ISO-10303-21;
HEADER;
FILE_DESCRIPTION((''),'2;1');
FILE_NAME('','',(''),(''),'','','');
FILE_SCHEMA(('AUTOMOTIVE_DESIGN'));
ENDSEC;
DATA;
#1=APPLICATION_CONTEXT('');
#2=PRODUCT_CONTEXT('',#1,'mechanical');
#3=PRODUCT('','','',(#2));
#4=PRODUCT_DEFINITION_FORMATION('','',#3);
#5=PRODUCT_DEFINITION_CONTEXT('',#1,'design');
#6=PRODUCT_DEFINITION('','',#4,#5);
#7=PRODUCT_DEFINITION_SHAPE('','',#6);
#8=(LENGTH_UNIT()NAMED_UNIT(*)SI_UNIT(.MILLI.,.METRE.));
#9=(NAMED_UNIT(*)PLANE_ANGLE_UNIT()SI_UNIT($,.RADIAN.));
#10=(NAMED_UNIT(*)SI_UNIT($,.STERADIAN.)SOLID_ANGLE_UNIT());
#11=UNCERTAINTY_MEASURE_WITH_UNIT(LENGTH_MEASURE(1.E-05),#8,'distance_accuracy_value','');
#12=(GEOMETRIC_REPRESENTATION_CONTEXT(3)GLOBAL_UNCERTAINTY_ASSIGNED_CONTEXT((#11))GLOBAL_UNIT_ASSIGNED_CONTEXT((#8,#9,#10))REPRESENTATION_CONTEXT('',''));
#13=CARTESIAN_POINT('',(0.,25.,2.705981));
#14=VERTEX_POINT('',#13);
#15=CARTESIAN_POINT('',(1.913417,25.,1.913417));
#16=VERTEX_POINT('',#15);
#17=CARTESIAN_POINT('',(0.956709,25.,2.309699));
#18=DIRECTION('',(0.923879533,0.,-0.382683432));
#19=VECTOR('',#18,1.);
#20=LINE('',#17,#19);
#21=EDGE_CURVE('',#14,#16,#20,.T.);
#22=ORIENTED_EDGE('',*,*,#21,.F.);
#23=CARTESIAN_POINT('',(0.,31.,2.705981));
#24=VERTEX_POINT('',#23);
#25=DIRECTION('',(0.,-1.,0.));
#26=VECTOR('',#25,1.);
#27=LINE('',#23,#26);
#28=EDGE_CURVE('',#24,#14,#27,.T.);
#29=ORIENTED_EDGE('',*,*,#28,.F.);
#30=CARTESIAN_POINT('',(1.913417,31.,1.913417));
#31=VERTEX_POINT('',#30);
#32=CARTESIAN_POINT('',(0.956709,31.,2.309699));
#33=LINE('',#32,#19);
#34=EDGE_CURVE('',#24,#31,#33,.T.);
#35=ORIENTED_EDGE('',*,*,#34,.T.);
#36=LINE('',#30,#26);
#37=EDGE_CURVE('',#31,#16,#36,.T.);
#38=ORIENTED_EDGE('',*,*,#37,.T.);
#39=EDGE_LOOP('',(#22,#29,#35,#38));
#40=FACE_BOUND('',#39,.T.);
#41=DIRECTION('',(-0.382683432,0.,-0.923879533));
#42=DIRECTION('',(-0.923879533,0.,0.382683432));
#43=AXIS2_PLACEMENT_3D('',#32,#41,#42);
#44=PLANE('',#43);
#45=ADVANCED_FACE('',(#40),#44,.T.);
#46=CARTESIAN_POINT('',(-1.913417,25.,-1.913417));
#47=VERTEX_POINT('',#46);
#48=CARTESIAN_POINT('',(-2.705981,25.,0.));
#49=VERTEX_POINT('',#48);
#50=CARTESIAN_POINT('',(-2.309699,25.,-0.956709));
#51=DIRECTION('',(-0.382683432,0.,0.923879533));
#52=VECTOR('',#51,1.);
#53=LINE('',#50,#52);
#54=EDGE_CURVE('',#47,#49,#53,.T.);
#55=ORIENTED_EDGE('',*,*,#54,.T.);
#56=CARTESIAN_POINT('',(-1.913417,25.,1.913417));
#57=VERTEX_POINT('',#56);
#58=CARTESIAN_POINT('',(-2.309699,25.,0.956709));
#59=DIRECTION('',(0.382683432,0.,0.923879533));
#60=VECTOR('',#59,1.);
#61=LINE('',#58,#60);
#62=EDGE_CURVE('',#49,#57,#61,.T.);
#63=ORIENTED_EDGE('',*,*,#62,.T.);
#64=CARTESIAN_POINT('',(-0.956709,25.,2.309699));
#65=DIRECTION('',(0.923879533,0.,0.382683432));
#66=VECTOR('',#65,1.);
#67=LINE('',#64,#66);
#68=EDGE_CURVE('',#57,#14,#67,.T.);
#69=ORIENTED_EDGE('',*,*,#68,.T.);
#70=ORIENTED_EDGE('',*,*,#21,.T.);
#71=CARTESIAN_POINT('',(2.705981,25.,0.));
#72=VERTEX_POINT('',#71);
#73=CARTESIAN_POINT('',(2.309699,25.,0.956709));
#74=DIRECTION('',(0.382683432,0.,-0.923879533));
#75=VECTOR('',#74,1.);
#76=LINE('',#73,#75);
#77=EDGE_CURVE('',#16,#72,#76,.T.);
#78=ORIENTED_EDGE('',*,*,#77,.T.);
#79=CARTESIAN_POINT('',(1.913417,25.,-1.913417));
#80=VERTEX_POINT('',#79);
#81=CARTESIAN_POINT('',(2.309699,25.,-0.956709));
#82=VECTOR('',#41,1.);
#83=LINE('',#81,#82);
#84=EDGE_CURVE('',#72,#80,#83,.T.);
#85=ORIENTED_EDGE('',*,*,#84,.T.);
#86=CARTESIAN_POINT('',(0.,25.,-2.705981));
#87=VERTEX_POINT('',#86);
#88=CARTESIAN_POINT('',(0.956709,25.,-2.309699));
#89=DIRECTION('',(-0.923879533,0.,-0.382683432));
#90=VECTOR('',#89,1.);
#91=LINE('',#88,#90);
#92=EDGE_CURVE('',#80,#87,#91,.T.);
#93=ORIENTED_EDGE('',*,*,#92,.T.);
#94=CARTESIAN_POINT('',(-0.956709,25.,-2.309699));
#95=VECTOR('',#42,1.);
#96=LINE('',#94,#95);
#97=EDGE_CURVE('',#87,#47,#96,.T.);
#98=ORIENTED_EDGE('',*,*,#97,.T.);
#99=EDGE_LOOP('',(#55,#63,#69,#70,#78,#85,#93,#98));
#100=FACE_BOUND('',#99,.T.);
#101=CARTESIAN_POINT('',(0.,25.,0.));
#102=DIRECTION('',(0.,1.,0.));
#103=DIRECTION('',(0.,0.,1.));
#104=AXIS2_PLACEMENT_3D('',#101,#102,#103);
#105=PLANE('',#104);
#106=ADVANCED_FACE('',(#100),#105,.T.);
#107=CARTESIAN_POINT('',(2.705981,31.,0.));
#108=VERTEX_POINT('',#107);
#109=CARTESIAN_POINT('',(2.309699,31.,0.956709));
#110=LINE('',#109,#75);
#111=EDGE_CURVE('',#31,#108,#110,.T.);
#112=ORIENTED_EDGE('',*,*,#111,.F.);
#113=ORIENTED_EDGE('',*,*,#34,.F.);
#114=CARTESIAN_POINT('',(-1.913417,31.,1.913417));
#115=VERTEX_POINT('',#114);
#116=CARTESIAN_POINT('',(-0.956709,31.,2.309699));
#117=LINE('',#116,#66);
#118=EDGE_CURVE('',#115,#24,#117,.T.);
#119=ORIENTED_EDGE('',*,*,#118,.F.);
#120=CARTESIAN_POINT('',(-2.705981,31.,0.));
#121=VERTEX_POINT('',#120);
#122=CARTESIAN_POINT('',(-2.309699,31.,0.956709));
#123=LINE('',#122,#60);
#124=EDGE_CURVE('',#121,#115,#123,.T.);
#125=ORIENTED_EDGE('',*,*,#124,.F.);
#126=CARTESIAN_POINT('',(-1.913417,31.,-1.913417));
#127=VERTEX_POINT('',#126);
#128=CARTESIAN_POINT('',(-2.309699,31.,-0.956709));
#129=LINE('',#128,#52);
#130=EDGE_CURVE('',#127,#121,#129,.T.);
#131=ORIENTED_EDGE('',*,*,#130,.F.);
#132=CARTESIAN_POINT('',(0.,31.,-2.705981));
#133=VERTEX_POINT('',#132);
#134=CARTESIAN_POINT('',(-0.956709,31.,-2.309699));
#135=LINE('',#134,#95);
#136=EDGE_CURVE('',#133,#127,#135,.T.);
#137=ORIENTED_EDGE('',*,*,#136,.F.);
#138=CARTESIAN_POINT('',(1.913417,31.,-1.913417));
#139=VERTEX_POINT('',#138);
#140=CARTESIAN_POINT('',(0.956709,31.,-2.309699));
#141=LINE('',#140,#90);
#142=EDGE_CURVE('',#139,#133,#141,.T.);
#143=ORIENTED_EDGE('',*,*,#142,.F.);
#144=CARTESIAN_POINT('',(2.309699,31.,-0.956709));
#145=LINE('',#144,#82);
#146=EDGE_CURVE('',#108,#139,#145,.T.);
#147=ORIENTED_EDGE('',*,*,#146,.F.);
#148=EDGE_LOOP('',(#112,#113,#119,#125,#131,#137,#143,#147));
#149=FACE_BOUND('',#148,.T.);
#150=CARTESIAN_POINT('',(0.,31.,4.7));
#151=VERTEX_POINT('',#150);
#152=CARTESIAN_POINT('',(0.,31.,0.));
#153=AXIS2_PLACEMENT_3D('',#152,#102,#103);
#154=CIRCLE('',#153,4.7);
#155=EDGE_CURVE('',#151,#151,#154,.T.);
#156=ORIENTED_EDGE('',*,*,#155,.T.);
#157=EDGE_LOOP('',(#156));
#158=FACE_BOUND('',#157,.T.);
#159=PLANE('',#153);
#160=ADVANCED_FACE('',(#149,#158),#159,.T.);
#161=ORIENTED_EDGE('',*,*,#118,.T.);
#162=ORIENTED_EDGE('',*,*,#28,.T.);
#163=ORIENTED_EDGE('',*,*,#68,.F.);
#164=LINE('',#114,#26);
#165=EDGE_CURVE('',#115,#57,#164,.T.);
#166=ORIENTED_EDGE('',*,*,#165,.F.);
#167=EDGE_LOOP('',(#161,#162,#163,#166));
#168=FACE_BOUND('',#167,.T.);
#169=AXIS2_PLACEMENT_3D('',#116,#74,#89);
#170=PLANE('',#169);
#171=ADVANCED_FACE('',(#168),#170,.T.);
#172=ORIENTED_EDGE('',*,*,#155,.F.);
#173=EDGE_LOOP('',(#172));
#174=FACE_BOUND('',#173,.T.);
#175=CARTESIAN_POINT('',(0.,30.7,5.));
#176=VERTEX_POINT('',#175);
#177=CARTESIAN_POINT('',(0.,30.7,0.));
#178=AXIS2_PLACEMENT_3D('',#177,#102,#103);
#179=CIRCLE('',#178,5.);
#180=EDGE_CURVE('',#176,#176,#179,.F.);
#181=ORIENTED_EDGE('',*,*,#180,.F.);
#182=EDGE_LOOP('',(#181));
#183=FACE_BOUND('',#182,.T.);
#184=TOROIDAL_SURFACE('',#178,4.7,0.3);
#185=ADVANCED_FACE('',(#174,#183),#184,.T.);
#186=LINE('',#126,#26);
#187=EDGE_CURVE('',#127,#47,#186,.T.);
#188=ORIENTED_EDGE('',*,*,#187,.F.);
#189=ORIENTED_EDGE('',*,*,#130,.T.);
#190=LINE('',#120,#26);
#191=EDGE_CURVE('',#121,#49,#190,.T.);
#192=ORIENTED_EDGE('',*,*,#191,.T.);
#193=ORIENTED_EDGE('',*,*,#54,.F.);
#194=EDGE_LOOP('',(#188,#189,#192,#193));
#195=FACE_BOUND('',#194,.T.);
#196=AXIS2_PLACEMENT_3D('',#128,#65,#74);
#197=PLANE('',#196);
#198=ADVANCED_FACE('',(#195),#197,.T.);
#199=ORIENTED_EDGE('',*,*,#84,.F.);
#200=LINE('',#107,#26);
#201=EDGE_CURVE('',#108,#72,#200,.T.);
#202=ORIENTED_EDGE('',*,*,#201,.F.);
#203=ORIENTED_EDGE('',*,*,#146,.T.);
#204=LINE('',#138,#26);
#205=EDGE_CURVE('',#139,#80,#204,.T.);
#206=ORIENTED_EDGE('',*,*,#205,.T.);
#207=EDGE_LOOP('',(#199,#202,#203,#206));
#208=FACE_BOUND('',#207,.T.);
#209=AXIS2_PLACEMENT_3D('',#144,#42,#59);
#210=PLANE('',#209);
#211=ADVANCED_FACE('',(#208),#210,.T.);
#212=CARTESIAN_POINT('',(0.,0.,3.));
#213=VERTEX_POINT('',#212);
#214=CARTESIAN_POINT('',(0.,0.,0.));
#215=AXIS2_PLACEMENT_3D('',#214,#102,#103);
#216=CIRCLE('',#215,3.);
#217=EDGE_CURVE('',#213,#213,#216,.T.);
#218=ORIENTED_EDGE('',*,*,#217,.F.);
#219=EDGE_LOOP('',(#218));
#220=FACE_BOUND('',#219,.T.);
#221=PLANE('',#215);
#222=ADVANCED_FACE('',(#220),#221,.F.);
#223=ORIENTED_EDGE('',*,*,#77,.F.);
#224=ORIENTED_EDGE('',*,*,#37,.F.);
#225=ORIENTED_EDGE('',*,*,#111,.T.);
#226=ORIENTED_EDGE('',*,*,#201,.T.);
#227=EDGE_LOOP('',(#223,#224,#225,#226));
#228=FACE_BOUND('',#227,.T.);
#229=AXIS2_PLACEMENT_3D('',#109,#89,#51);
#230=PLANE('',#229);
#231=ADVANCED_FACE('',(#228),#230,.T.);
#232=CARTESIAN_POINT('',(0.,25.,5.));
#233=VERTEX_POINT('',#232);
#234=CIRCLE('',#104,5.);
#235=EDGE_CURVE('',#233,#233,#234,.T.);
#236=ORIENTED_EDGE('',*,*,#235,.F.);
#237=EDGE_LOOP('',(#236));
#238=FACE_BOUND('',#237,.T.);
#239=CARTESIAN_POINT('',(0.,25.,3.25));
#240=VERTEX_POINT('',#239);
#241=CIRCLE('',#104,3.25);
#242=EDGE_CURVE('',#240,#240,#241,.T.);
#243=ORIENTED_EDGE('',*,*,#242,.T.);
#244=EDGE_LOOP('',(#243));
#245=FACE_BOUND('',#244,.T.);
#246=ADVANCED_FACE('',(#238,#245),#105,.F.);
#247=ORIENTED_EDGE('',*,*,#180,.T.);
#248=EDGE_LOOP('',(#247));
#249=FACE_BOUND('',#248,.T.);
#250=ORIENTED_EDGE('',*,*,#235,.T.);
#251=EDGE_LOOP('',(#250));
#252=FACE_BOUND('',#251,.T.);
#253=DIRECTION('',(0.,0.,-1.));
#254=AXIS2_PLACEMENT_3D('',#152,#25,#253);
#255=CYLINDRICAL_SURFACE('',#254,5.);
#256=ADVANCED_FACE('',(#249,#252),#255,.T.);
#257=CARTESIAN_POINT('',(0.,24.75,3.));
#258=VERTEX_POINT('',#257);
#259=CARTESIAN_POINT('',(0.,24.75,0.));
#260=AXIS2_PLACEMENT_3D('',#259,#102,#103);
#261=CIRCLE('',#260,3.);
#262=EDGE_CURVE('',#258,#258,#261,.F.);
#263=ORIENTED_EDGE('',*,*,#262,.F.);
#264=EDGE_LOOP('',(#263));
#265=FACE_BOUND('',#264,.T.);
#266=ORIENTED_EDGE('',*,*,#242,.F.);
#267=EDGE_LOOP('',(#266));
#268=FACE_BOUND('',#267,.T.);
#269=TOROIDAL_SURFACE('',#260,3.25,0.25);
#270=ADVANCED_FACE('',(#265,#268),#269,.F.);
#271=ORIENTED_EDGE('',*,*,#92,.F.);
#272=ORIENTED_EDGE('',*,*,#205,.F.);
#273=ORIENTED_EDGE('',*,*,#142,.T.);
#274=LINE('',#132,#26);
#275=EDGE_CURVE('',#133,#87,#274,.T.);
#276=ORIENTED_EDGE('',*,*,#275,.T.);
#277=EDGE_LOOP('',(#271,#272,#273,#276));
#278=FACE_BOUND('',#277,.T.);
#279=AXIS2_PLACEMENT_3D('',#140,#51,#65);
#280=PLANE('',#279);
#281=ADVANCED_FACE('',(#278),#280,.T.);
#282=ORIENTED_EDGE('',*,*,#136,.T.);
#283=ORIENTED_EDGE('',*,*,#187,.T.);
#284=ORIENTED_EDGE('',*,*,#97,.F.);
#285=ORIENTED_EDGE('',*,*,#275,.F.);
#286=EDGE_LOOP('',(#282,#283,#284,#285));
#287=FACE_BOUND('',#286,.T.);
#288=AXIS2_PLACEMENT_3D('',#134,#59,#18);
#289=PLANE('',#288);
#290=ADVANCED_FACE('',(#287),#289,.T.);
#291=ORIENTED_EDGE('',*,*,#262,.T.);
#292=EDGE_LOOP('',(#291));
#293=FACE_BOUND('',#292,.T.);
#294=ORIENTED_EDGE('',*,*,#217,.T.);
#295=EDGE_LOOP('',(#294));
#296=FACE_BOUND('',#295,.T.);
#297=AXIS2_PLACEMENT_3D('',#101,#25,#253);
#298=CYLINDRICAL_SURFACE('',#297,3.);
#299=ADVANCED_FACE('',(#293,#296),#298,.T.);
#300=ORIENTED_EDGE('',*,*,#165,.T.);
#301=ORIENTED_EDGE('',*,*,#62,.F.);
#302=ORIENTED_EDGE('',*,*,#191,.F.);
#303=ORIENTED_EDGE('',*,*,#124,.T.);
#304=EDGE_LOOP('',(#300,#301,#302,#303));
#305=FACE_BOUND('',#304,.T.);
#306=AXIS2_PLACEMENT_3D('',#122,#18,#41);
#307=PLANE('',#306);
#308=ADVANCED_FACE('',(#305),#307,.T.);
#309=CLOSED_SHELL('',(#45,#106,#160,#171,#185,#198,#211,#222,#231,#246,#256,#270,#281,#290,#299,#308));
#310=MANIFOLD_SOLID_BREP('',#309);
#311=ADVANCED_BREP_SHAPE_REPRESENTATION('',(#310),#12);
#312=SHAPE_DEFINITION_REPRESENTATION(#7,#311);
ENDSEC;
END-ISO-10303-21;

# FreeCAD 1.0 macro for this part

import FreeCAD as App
import Part
import Sketcher

V = App.Vector
Q = App.Units.Quantity


def edges_at(feature, points):
    """Names of the edges that pass closest to the given points."""
    edges = feature.Shape.Edges
    near = lambda p: min(range(len(edges)), key=lambda i: edges[i].distToShape(Part.Vertex(*p))[0])
    return sorted({f"Edge{near(p) + 1}" for p in points})


def add_polygon(sketch, points):
    """Adds a closed chain of lines whose ends are joined by coincident constraints."""
    first, n = sketch.GeometryCount, len(points)
    for a, b in zip(points, points[1:] + points[:1]):
        sketch.addGeometry(Part.LineSegment(App.Vector(*a, 0), App.Vector(*b, 0)), False)
    for i in range(n):
        sketch.addConstraint(Sketcher.Constraint("Coincident", first + i, 2, first + (i + 1) % n, 1))

doc = App.newDocument("Part")
body = doc.addObject("PartDesign::Body", "Body")

# Sketch on XZ plane
sketch1 = body.newObject("Sketcher::SketchObject", "Sketch")
sketch1.AttachmentSupport = (doc.getObject("XZ_Plane"), [""])
sketch1.MapMode = "FlatFace"
sketch1.addGeometry(Part.Circle(V(0, 0, 0), V(0, 0, 1), 3), False)
sketch1.addConstraint([
    Sketcher.Constraint("Coincident", 0, 3, -1, 1),
    Sketcher.Constraint("Diameter", 0, 6.0),
])
pad1 = body.newObject("PartDesign::Pad", "Pad")
pad1.Profile = sketch1
pad1.Length = 25
pad1.Reversed = True

# Sketch on XZ plane
sketch2 = body.newObject("Sketcher::SketchObject", "Sketch001")
sketch2.AttachmentSupport = (doc.getObject("XZ_Plane"), [""])
sketch2.MapMode = "FlatFace"
sketch2.AttachmentOffset = App.Placement(V(0, 0, -25), App.Rotation())
sketch2.addGeometry(Part.Circle(V(0, 0, 0), V(0, 0, 1), 5), False)  # 0
add_polygon(sketch2, [(2.705981, 0), (1.913417, 1.913417), (0, 2.705981), (-1.913417, 1.913417), (-2.705981, 0), (-1.913417, -1.913417), (0, -2.705981), (1.913417, -1.913417)])  # lines 1-8
sketch2.addConstraint([
    Sketcher.Constraint("Coincident", 0, 3, -1, 1),
    Sketcher.Constraint("Symmetric", 1, 2, 5, 2, -1, 1),
    Sketcher.Constraint("Symmetric", 2, 2, 6, 2, -1, 1),
    Sketcher.Constraint("Symmetric", 3, 2, 7, 2, -1, 1),
    Sketcher.Constraint("Symmetric", 4, 2, 8, 2, -1, 1),
    Sketcher.Constraint("Symmetric", 1, 2, 3, 2, -2),
    Sketcher.Constraint("PointOnObject", 2, 2, -2),
    Sketcher.Constraint("PointOnObject", 4, 2, -1),
    Sketcher.Constraint("Perpendicular", 1, 3),
    Sketcher.Constraint("Equal", 1, 2),
    Sketcher.Constraint("Diameter", 0, 10.0),
    Sketcher.Constraint("Angle", 1, Q("112.5 deg")),
    Sketcher.Constraint("DistanceY", -1, 1, 2, 2, 2.705981),
])
pad2 = body.newObject("PartDesign::Pad", "Pad001")
pad2.Profile = sketch2
pad2.Length = 6
pad2.Reversed = True
doc.recompute()

fillet = body.newObject("PartDesign::Fillet", "Fillet")
fillet.Base = (pad2, edges_at(pad2, [(-5, 31, 0)]))
fillet.Radius = 0.3
doc.recompute()

fillet2 = body.newObject("PartDesign::Fillet", "Fillet001")
fillet2.Base = (fillet, edges_at(fillet, [(-3, 25, 0)]))
fillet2.Radius = 0.25

doc.recompute()
